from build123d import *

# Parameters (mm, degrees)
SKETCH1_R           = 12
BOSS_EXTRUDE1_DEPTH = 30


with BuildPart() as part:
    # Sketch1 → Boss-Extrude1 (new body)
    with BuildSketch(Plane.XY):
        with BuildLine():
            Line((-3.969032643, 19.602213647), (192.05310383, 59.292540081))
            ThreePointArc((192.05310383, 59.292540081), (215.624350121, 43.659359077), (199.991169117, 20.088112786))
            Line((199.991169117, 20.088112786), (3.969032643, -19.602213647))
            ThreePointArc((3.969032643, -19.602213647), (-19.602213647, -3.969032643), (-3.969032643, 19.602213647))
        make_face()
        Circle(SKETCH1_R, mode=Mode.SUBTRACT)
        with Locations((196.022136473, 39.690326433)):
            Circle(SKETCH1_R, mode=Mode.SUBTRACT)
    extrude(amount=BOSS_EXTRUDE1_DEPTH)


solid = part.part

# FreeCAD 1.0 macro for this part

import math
import FreeCAD as App
import Part
import Sketcher

V = App.Vector

doc = App.newDocument("Part")
params = doc.addObject("Spreadsheet::Sheet", "Params")
for row, (alias, value) in enumerate([
    ("sketch1_diameter", "24 mm"),
    ("sketch1_radius", "20 mm"),
    ("sketch1_length", "200 mm"),
    ("pad1_length", "30 mm"),
], start=1):
    params.set(f"A{row}", alias)
    params.set(f"B{row}", "=" + value)
    params.setAlias(f"B{row}", alias)

body = doc.addObject("PartDesign::Body", "Body")

# Sketch on XY plane
sketch1 = doc.addObject("Sketcher::SketchObject", "Sketch")
body.addObject(sketch1)
sketch1.AttachmentSupport = (doc.XY_Plane, [""])
sketch1.MapMode = "FlatFace"
sketch1.addGeometry([
    Part.LineSegment(V(192, 59, 0), V(-4, 20, 0)),  # 0
    Part.ArcOfCircle(Part.Circle(V(0, 0, 0), V(0, 0, 1), 20), math.radians(101), math.radians(281)),  # 1
    Part.LineSegment(V(4, -20, 0), V(200, 20, 0)),  # 2
    Part.ArcOfCircle(Part.Circle(V(196, 40, 0), V(0, 0, 1), 20), math.radians(-79), math.radians(101)),  # 3
    Part.Circle(V(0, 0, 0), V(0, 0, 1), 12),  # 4
    Part.Circle(V(196, 40, 0), V(0, 0, 1), 12),  # 5
], False)
sketch1.addConstraint([
    Sketcher.Constraint("Tangent", 0, 2, 1, 1),
    Sketcher.Constraint("Tangent", 1, 2, 2, 1),
    Sketcher.Constraint("Tangent", 2, 2, 3, 1),
    Sketcher.Constraint("Tangent", 3, 2, 0, 1),
    Sketcher.Constraint("Coincident", 1, 3, -1, 1),
    Sketcher.Constraint("Coincident", 4, 3, -1, 1),
    Sketcher.Constraint("Coincident", 5, 3, 3, 3),
    Sketcher.Constraint("Equal", 1, 3),
    Sketcher.Constraint("Equal", 4, 5),
    Sketcher.Constraint("Diameter", 4, 24.0),
    Sketcher.Constraint("Radius", 1, 20.0),
    Sketcher.Constraint("Distance", 0, 200.0),
    Sketcher.Constraint("DistanceX", -1, 1, 2, 2, 199.991169),
])
sketch1.setExpression("Constraints[9]", "Params.sketch1_diameter")
sketch1.setExpression("Constraints[10]", "Params.sketch1_radius")
sketch1.setExpression("Constraints[11]", "Params.sketch1_length")
pad1 = doc.addObject("PartDesign::Pad", "Pad")
body.addObject(pad1)
pad1.Profile = sketch1
pad1.setExpression("Length", "Params.pad1_length")

doc.recompute()
